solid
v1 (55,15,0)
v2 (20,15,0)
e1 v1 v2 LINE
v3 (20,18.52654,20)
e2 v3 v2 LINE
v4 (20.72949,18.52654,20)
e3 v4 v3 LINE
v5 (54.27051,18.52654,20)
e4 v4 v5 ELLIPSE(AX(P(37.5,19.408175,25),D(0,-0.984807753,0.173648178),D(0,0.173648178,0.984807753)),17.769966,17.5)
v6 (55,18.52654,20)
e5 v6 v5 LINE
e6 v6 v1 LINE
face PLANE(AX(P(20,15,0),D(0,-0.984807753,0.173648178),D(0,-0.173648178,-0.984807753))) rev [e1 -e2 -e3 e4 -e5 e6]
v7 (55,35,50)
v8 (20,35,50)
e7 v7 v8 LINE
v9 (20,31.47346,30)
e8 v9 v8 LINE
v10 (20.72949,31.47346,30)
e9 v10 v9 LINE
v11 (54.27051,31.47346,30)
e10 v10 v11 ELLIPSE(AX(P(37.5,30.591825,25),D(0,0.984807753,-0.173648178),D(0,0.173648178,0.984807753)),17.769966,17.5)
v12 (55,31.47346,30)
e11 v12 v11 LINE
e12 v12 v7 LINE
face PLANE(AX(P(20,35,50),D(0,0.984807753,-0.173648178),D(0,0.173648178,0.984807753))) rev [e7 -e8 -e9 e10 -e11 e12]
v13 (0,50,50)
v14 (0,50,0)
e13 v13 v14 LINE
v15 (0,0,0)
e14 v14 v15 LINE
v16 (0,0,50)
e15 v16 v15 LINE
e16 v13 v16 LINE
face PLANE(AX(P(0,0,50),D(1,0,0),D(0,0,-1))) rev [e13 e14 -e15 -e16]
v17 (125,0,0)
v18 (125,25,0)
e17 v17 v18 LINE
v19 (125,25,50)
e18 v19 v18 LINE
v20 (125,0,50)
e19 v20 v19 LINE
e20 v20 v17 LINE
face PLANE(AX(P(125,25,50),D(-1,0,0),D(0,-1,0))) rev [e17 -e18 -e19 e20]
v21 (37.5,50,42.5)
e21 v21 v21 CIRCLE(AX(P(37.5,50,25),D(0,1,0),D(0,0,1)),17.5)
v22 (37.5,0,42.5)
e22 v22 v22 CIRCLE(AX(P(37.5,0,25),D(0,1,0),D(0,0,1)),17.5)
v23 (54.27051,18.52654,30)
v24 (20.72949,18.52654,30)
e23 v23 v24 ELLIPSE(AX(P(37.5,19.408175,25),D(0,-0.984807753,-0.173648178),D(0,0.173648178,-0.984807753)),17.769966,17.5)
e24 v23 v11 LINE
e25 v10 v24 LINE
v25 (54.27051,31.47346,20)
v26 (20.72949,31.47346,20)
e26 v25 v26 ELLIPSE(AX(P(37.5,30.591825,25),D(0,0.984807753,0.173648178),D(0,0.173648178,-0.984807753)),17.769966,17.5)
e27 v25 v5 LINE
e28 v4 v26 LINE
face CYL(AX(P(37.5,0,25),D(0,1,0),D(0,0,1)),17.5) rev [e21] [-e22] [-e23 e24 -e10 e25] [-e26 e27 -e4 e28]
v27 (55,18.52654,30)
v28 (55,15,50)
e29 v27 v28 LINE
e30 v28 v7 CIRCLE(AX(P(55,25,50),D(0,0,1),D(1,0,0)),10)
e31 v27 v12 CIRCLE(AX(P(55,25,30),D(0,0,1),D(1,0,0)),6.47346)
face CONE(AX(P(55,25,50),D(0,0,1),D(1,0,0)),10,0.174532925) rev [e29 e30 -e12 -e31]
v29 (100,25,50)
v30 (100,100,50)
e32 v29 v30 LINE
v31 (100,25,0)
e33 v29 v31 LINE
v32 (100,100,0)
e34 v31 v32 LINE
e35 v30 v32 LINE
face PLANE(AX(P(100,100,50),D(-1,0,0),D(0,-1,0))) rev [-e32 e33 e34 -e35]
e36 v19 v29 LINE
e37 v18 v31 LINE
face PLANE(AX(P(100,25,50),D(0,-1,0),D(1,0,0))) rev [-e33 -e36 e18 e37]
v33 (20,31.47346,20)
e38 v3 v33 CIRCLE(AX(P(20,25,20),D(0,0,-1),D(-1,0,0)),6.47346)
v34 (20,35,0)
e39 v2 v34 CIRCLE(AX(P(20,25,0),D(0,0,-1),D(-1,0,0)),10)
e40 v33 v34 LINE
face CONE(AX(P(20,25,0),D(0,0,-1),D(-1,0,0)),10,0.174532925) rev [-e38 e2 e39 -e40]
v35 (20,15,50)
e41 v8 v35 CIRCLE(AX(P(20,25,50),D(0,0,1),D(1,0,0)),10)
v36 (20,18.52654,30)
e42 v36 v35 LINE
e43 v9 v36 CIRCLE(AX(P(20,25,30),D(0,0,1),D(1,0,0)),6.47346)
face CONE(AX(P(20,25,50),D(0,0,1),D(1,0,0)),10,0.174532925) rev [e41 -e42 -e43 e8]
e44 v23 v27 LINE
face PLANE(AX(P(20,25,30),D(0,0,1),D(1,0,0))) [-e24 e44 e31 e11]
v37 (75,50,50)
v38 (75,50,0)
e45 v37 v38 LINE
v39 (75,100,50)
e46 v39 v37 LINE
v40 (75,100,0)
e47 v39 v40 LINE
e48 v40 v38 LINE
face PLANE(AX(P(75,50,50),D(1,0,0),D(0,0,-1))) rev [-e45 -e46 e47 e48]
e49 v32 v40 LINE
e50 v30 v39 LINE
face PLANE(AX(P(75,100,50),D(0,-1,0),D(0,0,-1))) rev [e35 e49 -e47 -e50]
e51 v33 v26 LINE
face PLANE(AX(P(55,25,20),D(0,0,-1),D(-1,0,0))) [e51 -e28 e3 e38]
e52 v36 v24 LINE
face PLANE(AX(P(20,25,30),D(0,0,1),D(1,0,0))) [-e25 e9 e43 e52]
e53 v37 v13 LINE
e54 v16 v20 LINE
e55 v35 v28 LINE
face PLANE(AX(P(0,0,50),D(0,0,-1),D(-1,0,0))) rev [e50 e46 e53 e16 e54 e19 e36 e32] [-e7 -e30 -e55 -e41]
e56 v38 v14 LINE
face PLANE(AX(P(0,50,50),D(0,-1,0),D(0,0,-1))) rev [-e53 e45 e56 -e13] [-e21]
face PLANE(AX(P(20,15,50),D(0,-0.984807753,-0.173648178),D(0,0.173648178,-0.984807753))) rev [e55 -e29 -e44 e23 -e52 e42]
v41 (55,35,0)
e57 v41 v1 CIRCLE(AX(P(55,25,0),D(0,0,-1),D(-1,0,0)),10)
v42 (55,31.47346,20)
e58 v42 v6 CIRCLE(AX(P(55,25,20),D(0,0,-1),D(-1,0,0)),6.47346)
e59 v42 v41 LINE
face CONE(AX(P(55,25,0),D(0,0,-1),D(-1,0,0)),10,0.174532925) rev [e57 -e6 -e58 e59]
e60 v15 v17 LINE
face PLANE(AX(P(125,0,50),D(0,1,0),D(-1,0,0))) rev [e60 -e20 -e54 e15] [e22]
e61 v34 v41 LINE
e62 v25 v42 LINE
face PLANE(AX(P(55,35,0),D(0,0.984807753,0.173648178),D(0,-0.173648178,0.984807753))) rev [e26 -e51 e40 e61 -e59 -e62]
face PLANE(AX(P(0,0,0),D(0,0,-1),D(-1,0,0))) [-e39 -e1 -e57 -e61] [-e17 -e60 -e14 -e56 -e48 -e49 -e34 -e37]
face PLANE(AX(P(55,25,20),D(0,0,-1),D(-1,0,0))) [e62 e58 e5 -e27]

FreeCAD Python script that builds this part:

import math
import FreeCAD as App
import Part
import Sketcher

V = App.Vector


def add_polygon(sketch, points):
    """Adds a closed chain of lines whose ends are joined by coincident constraints."""
    first, n = sketch.GeometryCount, len(points)
    for a, b in zip(points, points[1:] + points[:1]):
        sketch.addGeometry(Part.LineSegment(App.Vector(*a, 0), App.Vector(*b, 0)), False)
    for i in range(n):
        sketch.addConstraint(Sketcher.Constraint("Coincident", first + i, 2, first + (i + 1) % n, 1))

doc = App.newDocument("Part")
body = doc.addObject("PartDesign::Body", "Body")

sketch1 = body.newObject("Sketcher::SketchObject", "Sketch")
sketch1.AttachmentSupport = (doc.getObject("XY_Plane"), [""])
sketch1.MapMode = "FlatFace"
add_polygon(sketch1, [(0, 50), (0, 0), (125, 0), (125, 25), (100, 25), (100, 100), (75, 100), (75, 50)])
sketch1.addConstraint(Sketcher.Constraint("Vertical", 0))
sketch1.addConstraint(Sketcher.Constraint("Horizontal", 1))
sketch1.addConstraint(Sketcher.Constraint("Vertical", 2))
sketch1.addConstraint(Sketcher.Constraint("Horizontal", 3))
sketch1.addConstraint(Sketcher.Constraint("Vertical", 4))
sketch1.addConstraint(Sketcher.Constraint("Horizontal", 5))
sketch1.addConstraint(Sketcher.Constraint("Vertical", 6))
sketch1.addConstraint(Sketcher.Constraint("Horizontal", 7))
sketch1.addConstraint(Sketcher.Constraint("Coincident", 0, 2, -1, 1))
sketch1.addConstraint(Sketcher.Constraint("Equal", 3, 5))
sketch1.addConstraint(Sketcher.Constraint("Equal", 5, 2))
sketch1.addConstraint(Sketcher.Constraint("Equal", 7, 4))
sketch1.addConstraint(Sketcher.Constraint("Equal", 0, 6))
sketch1.addConstraint(Sketcher.Constraint("DistanceX", 1, 1, 1, 2, 125.0))
sketch1.addConstraint(Sketcher.Constraint("DistanceX", 3, 2, 3, 1, 25.0))
pad1 = body.newObject("PartDesign::Pad", "Pad")
pad1.Profile = sketch1
pad1.Length = 50

sketch2 = body.newObject("Sketcher::SketchObject", "Sketch001")
sketch2.AttachmentSupport = (doc.getObject("XY_Plane"), [""])
sketch2.MapMode = "FlatFace"
sketch2.AttachmentOffset = App.Placement(V(0, 0, 50), App.Rotation())
sketch2.addGeometry(Part.ArcOfCircle(Part.Circle(V(20, 25, 0), V(0, 0, 1), 10), math.radians(90), math.radians(270)), False)
sketch2.addGeometry(Part.LineSegment(V(20, 15, 0), V(55, 15, 0)), False)
sketch2.addGeometry(Part.ArcOfCircle(Part.Circle(V(55, 25, 0), V(0, 0, 1), 10), math.radians(-90), math.radians(90)), False)
sketch2.addGeometry(Part.LineSegment(V(55, 35, 0), V(20, 35, 0)), False)
sketch2.addConstraint(Sketcher.Constraint("Tangent", 0, 2, 1, 1))
sketch2.addConstraint(Sketcher.Constraint("Tangent", 1, 2, 2, 1))
sketch2.addConstraint(Sketcher.Constraint("Tangent", 2, 2, 3, 1))
sketch2.addConstraint(Sketcher.Constraint("Tangent", 3, 2, 0, 1))
sketch2.addConstraint(Sketcher.Constraint("Horizontal", 1))
sketch2.addConstraint(Sketcher.Constraint("Horizontal", 3))
sketch2.addConstraint(Sketcher.Constraint("Radius", 0, 10.0))
sketch2.addConstraint(Sketcher.Constraint("DistanceX", 1, 1, 1, 2, 35.0))
sketch2.addConstraint(Sketcher.Constraint("DistanceX", -1, 1, 0, 3, 20.0))
sketch2.addConstraint(Sketcher.Constraint("DistanceY", -1, 1, 0, 3, 25.0))
pocket1 = body.newObject("PartDesign::Pocket", "Pocket")
pocket1.Profile = sketch2
pocket1.Length = 20
pocket1.TaperAngle = -10

sketch3 = body.newObject("Sketcher::SketchObject", "Sketch002")
sketch3.AttachmentSupport = (doc.getObject("XY_Plane"), [""])
sketch3.MapMode = "FlatFace"
sketch3.addGeometry(Part.ArcOfCircle(Part.Circle(V(20, 25, 0), V(0, 0, 1), 10), math.radians(90), math.radians(270)), False)
sketch3.addGeometry(Part.LineSegment(V(20, 35, 0), V(55, 35, 0)), False)
sketch3.addGeometry(Part.ArcOfCircle(Part.Circle(V(55, 25, 0), V(0, 0, 1), 10), math.radians(-90), math.radians(90)), False)
sketch3.addGeometry(Part.LineSegment(V(55, 15, 0), V(20, 15, 0)), False)
sketch3.addConstraint(Sketcher.Constraint("Tangent", 0, 1, 1, 1))
sketch3.addConstraint(Sketcher.Constraint("Tangent", 1, 2, 2, 2))
sketch3.addConstraint(Sketcher.Constraint("Tangent", 2, 1, 3, 1))
sketch3.addConstraint(Sketcher.Constraint("Tangent", 3, 2, 0, 2))
sketch3.addConstraint(Sketcher.Constraint("Horizontal", 1))
sketch3.addConstraint(Sketcher.Constraint("Horizontal", 3))
sketch3.addConstraint(Sketcher.Constraint("Radius", 0, 10.0))
sketch3.addConstraint(Sketcher.Constraint("DistanceX", 1, 1, 1, 2, 35.0))
sketch3.addConstraint(Sketcher.Constraint("DistanceX", -1, 1, 0, 3, 20.0))
sketch3.addConstraint(Sketcher.Constraint("DistanceY", -1, 1, 0, 3, 25.0))
pocket2 = body.newObject("PartDesign::Pocket", "Pocket001")
pocket2.Profile = sketch3
pocket2.Length = 20
pocket2.Reversed = True
pocket2.TaperAngle = -10

sketch4 = body.newObject("Sketcher::SketchObject", "Sketch003")
sketch4.AttachmentSupport = (doc.getObject("XZ_Plane"), [""])
sketch4.MapMode = "FlatFace"
sketch4.AttachmentOffset = App.Placement(V(0, 0, -50), App.Rotation())
sketch4.addGeometry(Part.Circle(V(37.5, 25, 0), V(0, 0, 1), 17.5), False)
sketch4.addConstraint(Sketcher.Constraint("Diameter", 0, 35.0))
sketch4.addConstraint(Sketcher.Constraint("DistanceY", -1, 1, 0, 3, 25.0))
sketch4.addConstraint(Sketcher.Constraint("DistanceX", -1, 1, 0, 3, 37.5))
pocket3 = body.newObject("PartDesign::Pocket", "Pocket002")
pocket3.Profile = sketch4
pocket3.Length = 50
pocket3.Reversed = True

doc.recompute()
